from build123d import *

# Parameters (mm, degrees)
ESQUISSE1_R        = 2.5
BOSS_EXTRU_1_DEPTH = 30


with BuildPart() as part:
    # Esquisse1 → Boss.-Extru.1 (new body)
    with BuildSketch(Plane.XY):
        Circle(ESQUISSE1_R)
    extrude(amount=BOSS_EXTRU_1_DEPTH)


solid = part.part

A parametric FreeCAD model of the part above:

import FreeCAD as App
import Part
import Sketcher
from FreeCAD import Vector

doc = App.newDocument("Part")
body = doc.addObject("PartDesign::Body", "Body")

# Sketch on XY plane
sketch1 = body.newObject("Sketcher::SketchObject", "Sketch")
sketch1.AttachmentSupport = (doc.getObject("XY_Plane"), [""])
sketch1.MapMode = "FlatFace"
sketch1.addGeometry(Part.Circle(Vector(0, 0, 0), Vector(0, 0, 1), 2.5), False)
sketch1.addConstraint(Sketcher.Constraint("Coincident", 0, 3, -1, 1))
sketch1.addConstraint(Sketcher.Constraint("Diameter", 0, 5.0))
pad1 = body.newObject("PartDesign::Pad", "Pad")
pad1.Profile = sketch1
pad1.Length = 30

doc.recompute()
